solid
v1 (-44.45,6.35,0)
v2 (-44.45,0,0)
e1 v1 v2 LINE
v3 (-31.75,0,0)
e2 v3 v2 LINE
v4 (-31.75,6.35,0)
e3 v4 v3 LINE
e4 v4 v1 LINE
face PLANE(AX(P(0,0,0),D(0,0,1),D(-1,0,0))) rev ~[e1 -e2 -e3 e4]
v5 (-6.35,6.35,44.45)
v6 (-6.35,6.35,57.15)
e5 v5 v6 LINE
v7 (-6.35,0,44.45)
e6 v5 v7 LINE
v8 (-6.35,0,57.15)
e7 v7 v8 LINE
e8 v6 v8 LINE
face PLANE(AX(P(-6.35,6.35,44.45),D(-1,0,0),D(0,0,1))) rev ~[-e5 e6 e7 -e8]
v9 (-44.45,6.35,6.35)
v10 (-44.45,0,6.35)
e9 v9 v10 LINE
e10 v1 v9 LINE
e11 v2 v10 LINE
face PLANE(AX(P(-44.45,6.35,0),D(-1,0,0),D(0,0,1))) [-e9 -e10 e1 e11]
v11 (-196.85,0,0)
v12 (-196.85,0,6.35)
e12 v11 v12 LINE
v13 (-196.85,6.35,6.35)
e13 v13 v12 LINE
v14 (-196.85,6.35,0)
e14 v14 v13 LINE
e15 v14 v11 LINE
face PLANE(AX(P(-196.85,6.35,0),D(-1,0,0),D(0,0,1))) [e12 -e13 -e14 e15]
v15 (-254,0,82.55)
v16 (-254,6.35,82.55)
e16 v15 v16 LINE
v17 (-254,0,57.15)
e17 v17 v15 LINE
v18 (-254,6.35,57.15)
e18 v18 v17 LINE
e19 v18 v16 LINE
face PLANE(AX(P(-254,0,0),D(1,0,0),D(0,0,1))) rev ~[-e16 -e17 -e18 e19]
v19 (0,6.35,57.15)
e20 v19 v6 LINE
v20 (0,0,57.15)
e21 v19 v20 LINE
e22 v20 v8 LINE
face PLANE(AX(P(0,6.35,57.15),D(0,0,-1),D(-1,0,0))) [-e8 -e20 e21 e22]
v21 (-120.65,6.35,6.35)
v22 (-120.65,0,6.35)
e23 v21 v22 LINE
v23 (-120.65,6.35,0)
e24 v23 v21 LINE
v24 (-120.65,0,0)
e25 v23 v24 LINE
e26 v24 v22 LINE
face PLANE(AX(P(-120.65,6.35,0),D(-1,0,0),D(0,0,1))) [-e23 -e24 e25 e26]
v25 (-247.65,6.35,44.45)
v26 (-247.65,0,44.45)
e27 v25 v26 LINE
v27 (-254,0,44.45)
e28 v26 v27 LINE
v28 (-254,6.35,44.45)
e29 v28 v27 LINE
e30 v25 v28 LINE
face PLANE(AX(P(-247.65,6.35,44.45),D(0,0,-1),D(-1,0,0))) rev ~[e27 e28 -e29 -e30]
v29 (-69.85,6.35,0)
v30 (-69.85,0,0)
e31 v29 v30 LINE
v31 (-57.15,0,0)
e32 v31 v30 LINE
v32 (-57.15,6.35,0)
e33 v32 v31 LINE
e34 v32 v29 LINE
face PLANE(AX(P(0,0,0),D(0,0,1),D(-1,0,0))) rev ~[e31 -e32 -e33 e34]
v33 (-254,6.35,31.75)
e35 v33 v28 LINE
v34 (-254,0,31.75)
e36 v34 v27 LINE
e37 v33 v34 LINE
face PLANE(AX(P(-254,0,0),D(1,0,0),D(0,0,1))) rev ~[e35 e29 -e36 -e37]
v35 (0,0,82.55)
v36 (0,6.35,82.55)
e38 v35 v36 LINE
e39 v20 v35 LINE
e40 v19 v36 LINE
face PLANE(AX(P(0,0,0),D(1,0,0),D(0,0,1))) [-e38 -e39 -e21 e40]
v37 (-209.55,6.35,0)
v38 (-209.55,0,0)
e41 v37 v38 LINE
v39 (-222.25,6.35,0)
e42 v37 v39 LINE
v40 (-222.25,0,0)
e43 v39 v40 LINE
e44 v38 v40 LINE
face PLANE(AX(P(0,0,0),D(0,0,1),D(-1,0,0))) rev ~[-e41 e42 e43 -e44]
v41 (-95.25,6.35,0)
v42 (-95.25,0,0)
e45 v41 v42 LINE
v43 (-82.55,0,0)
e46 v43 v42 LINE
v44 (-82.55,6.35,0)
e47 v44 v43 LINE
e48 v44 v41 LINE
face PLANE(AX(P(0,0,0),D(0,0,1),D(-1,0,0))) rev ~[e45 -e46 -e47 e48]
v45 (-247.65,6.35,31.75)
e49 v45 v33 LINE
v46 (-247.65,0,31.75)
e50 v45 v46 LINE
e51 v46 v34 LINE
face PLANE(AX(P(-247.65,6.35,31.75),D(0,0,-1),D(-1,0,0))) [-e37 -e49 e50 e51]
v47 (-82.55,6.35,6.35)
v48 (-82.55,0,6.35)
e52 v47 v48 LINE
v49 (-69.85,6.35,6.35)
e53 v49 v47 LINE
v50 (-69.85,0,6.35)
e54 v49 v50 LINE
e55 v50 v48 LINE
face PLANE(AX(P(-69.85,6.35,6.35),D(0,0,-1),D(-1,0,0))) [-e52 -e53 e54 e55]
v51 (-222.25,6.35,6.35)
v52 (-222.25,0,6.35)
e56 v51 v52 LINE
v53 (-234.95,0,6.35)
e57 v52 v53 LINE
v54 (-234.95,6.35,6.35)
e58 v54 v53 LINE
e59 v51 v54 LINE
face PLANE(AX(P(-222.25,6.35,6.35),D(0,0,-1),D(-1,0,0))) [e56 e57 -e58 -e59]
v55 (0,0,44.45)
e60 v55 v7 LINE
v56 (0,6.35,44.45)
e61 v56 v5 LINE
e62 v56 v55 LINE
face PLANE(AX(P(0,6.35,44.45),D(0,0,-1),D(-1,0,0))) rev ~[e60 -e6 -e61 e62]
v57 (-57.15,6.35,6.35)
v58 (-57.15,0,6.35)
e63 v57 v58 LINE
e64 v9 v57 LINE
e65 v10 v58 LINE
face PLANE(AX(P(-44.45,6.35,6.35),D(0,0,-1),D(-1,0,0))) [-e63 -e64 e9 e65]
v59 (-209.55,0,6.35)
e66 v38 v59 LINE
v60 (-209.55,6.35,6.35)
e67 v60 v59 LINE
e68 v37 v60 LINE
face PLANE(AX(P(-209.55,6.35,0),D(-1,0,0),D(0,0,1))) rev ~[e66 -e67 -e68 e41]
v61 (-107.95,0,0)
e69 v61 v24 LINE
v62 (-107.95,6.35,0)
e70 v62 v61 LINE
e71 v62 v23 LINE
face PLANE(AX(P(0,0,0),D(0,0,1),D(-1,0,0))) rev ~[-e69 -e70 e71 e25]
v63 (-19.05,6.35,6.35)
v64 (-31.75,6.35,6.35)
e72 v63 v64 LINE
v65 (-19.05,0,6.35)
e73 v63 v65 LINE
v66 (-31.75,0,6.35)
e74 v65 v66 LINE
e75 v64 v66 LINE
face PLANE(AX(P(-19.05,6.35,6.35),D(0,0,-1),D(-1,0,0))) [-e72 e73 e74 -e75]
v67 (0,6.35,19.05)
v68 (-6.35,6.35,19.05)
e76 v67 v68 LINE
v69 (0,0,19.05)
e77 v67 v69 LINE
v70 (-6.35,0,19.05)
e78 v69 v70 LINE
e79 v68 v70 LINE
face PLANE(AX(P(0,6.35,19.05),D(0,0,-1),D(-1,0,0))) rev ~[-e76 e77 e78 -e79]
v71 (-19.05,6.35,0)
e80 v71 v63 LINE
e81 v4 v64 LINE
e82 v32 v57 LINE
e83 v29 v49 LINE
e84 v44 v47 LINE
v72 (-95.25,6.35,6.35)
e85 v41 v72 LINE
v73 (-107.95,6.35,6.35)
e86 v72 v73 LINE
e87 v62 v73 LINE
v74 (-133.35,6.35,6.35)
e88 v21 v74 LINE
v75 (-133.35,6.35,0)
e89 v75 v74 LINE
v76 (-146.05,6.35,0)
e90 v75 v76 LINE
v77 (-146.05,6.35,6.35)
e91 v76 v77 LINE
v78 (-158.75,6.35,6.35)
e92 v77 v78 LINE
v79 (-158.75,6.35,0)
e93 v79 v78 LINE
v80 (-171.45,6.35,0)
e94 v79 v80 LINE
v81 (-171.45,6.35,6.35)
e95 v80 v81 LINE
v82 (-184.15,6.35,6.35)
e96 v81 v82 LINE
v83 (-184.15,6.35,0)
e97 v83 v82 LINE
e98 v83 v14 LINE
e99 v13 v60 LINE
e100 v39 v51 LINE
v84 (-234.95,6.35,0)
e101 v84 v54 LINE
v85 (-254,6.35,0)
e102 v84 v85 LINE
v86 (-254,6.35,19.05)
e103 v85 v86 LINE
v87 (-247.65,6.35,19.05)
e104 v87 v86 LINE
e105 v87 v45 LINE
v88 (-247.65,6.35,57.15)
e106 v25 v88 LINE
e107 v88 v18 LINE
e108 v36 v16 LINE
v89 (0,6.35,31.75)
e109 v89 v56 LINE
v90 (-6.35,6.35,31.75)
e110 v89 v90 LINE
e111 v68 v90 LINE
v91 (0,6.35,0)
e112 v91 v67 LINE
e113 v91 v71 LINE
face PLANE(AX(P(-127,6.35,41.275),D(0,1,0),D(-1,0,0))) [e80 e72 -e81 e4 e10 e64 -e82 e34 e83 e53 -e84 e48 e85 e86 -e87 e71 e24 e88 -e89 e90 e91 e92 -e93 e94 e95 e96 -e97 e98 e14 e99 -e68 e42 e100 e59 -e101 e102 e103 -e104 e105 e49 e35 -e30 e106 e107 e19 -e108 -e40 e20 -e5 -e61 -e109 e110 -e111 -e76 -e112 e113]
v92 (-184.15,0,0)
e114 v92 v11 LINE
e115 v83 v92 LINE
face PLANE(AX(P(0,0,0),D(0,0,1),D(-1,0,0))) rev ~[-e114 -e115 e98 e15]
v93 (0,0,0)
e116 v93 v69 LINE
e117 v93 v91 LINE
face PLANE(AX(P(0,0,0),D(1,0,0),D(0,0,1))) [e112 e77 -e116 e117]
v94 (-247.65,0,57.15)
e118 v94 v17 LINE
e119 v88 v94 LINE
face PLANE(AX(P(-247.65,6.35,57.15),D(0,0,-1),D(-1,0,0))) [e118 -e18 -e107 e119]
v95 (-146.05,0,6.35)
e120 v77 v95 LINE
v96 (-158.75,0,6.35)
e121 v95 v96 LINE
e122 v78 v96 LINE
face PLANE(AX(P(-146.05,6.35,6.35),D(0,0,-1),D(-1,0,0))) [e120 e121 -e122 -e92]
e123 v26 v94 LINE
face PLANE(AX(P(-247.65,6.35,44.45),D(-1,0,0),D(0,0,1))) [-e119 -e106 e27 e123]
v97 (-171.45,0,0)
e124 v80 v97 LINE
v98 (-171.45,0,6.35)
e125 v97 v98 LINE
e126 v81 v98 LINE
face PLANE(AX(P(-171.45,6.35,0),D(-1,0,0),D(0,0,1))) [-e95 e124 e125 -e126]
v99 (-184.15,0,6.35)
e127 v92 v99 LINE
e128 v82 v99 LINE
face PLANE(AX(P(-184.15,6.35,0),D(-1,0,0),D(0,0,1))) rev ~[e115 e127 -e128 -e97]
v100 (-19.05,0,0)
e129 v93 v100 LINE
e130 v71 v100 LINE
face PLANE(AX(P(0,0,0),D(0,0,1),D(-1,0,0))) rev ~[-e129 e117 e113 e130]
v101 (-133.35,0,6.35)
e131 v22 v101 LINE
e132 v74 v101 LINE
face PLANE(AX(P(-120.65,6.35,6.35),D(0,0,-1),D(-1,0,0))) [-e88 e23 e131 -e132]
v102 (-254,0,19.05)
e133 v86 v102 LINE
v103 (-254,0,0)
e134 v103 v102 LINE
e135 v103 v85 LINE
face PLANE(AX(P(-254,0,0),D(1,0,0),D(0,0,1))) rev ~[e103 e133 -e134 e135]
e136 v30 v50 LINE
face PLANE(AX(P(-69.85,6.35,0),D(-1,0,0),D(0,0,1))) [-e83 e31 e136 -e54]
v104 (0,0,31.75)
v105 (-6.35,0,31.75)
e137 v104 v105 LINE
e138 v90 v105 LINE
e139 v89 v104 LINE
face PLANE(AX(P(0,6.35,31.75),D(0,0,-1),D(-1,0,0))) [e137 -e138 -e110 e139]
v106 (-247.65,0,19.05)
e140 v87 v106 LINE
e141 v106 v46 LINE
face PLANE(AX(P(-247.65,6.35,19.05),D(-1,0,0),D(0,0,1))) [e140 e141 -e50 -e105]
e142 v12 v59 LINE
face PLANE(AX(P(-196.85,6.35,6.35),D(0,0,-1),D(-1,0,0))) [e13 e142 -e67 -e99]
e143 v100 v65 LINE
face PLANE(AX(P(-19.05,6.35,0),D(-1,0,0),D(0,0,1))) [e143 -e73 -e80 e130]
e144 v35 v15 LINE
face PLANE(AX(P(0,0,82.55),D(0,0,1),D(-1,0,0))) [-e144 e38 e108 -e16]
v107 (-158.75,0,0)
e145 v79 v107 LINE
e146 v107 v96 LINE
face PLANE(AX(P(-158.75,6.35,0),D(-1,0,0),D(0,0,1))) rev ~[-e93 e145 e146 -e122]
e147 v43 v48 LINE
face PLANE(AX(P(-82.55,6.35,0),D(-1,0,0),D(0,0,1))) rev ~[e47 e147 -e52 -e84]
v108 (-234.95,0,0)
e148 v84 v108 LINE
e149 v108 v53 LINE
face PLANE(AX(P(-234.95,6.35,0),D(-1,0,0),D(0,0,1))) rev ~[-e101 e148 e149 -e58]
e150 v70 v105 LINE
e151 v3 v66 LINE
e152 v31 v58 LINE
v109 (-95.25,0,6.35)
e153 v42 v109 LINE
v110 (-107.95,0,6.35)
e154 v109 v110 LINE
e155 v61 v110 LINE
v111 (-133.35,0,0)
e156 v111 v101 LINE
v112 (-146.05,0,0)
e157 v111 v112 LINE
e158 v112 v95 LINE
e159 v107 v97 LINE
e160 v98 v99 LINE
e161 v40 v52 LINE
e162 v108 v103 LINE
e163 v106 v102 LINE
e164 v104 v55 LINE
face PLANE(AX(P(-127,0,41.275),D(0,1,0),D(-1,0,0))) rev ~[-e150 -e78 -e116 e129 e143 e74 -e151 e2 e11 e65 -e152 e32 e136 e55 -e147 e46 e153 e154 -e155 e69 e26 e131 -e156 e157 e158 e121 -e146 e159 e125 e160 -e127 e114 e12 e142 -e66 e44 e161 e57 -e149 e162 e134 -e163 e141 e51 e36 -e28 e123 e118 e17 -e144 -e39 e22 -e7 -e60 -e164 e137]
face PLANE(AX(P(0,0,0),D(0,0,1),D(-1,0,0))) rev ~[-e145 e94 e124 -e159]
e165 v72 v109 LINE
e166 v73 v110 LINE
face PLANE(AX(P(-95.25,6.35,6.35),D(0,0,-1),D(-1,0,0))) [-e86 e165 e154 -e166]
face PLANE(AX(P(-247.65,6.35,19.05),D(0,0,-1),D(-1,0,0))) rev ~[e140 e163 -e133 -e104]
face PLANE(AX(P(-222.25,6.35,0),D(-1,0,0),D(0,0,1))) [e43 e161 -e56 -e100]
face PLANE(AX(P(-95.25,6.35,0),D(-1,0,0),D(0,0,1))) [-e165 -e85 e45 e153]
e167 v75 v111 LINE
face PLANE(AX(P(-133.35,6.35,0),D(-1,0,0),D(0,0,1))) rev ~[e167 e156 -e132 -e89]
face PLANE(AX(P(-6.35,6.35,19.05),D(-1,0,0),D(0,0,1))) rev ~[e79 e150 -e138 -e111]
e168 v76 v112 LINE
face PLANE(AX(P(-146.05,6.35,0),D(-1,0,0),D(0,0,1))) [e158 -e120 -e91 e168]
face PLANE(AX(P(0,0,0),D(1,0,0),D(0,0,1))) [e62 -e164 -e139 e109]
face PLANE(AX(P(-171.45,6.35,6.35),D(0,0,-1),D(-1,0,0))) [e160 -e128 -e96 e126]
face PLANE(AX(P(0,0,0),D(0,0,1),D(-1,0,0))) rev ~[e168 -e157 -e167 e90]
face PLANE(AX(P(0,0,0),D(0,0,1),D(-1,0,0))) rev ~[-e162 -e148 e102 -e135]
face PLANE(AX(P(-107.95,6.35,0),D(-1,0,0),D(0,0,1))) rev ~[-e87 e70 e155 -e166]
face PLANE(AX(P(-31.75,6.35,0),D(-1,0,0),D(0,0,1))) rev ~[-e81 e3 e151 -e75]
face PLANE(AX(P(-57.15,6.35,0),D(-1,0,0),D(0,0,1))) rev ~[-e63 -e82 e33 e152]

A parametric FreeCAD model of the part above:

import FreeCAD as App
import Part
import Sketcher
Q = App.Units.Quantity

doc = App.newDocument("Part")
body = doc.addObject("PartDesign::Body", "Body")

sketch1 = body.newObject("Sketcher::SketchObject", "Sketch")
sketch1.AttachmentSupport = (doc.getObject("XZ_Plane"), [""])
sketch1.MapMode = "FlatFace"
sketch1.addGeometry([
    Part.LineSegment(App.Vector(0, 83, 0), App.Vector(0, 0, 0)),
    Part.LineSegment(App.Vector(0, 0, 0), App.Vector(-254, 0, 0)),
    Part.LineSegment(App.Vector(-254, 0, 0), App.Vector(-254, 83, 0)),
    Part.LineSegment(App.Vector(-254, 83, 0), App.Vector(0, 83, 0)),
], False)
sketch1.addConstraint([
    Sketcher.Constraint("Coincident", 0, 2, 1, 1),
    Sketcher.Constraint("Coincident", 1, 2, 2, 1),
    Sketcher.Constraint("Coincident", 2, 2, 3, 1),
    Sketcher.Constraint("Coincident", 3, 2, 0, 1),
    Sketcher.Constraint("Vertical", 0),
    Sketcher.Constraint("Horizontal", 1),
    Sketcher.Constraint("Vertical", 2),
    Sketcher.Constraint("Horizontal", 3),
    Sketcher.Constraint("Coincident", 0, 2, -1, 1),
    Sketcher.Constraint("DistanceX", 1, 2, 1, 1, Q("10 in")),
    Sketcher.Constraint("DistanceY", 0, 2, 0, 1, Q("3.25 in")),
])
pad1 = body.newObject("PartDesign::Pad", "Pad")
pad1.Profile = sketch1
pad1.Length = Q("0.25 in")
pad1.Reversed = True

sketch2 = body.newObject("Sketcher::SketchObject", "Sketch001")
sketch2.AttachmentSupport = (doc.getObject("XZ_Plane"), [""])
sketch2.MapMode = "FlatFace"
sketch2.AttachmentOffset = App.Placement(App.Vector(0, 0, -0.25 * 25.4), App.Rotation())
sketch2.addGeometry([
    Part.LineSegment(App.Vector(0, 32, 0), App.Vector(0, 19, 0)),
    Part.LineSegment(App.Vector(0, 19, 0), App.Vector(-6, 19, 0)),
    Part.LineSegment(App.Vector(-6, 19, 0), App.Vector(-6, 32, 0)),
    Part.LineSegment(App.Vector(-6, 32, 0), App.Vector(0, 32, 0)),
    Part.LineSegment(App.Vector(0, 57, 0), App.Vector(0, 44, 0)),
    Part.LineSegment(App.Vector(0, 44, 0), App.Vector(-6, 44, 0)),
    Part.LineSegment(App.Vector(-6, 44, 0), App.Vector(-6, 57, 0)),
    Part.LineSegment(App.Vector(-6, 57, 0), App.Vector(0, 57, 0)),
    Part.LineSegment(App.Vector(-248, 32, 0), App.Vector(-248, 19, 0)),
    Part.LineSegment(App.Vector(-248, 19, 0), App.Vector(-254, 19, 0)),
    Part.LineSegment(App.Vector(-254, 19, 0), App.Vector(-254, 32, 0)),
    Part.LineSegment(App.Vector(-254, 32, 0), App.Vector(-248, 32, 0)),
    Part.LineSegment(App.Vector(-248, 57, 0), App.Vector(-248, 44, 0)),
    Part.LineSegment(App.Vector(-248, 44, 0), App.Vector(-254, 44, 0)),
    Part.LineSegment(App.Vector(-254, 44, 0), App.Vector(-254, 57, 0)),
    Part.LineSegment(App.Vector(-254, 57, 0), App.Vector(-248, 57, 0)),
    Part.LineSegment(App.Vector(-44, 6, 0), App.Vector(-44, 0, 0)),
    Part.LineSegment(App.Vector(-44, 0, 0), App.Vector(-57, 0, 0)),
    Part.LineSegment(App.Vector(-57, 0, 0), App.Vector(-57, 6, 0)),
    Part.LineSegment(App.Vector(-57, 6, 0), App.Vector(-44, 6, 0)),
    Part.LineSegment(App.Vector(-19, 6, 0), App.Vector(-19, 0, 0)),
    Part.LineSegment(App.Vector(-19, 0, 0), App.Vector(-32, 0, 0)),
    Part.LineSegment(App.Vector(-32, 0, 0), App.Vector(-32, 6, 0)),
    Part.LineSegment(App.Vector(-32, 6, 0), App.Vector(-19, 6, 0)),
    Part.LineSegment(App.Vector(-70, 6, 0), App.Vector(-70, 0, 0)),
    Part.LineSegment(App.Vector(-70, 0, 0), App.Vector(-83, 0, 0)),
    Part.LineSegment(App.Vector(-83, 0, 0), App.Vector(-83, 6, 0)),
    Part.LineSegment(App.Vector(-83, 6, 0), App.Vector(-70, 6, 0)),
    Part.LineSegment(App.Vector(-95, 6, 0), App.Vector(-95, 0, 0)),
    Part.LineSegment(App.Vector(-95, 0, 0), App.Vector(-108, 0, 0)),
    Part.LineSegment(App.Vector(-108, 0, 0), App.Vector(-108, 6, 0)),
    Part.LineSegment(App.Vector(-108, 6, 0), App.Vector(-95, 6, 0)),
    Part.LineSegment(App.Vector(-121, 6, 0), App.Vector(-121, 0, 0)),
    Part.LineSegment(App.Vector(-121, 0, 0), App.Vector(-133, 0, 0)),
    Part.LineSegment(App.Vector(-133, 0, 0), App.Vector(-133, 6, 0)),
    Part.LineSegment(App.Vector(-133, 6, 0), App.Vector(-121, 6, 0)),
    Part.LineSegment(App.Vector(-171, 6, 0), App.Vector(-171, 0, 0)),
    Part.LineSegment(App.Vector(-171, 0, 0), App.Vector(-184, 0, 0)),
    Part.LineSegment(App.Vector(-184, 0, 0), App.Vector(-184, 6, 0)),
    Part.LineSegment(App.Vector(-184, 6, 0), App.Vector(-171, 6, 0)),
    Part.LineSegment(App.Vector(-146, 6, 0), App.Vector(-146, 0, 0)),
    Part.LineSegment(App.Vector(-146, 0, 0), App.Vector(-159, 0, 0)),
    Part.LineSegment(App.Vector(-159, 0, 0), App.Vector(-159, 6, 0)),
    Part.LineSegment(App.Vector(-159, 6, 0), App.Vector(-146, 6, 0)),
    Part.LineSegment(App.Vector(-197, 6, 0), App.Vector(-197, 0, 0)),
    Part.LineSegment(App.Vector(-197, 0, 0), App.Vector(-210, 0, 0)),
    Part.LineSegment(App.Vector(-210, 0, 0), App.Vector(-210, 6, 0)),
    Part.LineSegment(App.Vector(-210, 6, 0), App.Vector(-197, 6, 0)),
    Part.LineSegment(App.Vector(-222, 6, 0), App.Vector(-222, 0, 0)),
    Part.LineSegment(App.Vector(-222, 0, 0), App.Vector(-235, 0, 0)),
    Part.LineSegment(App.Vector(-235, 0, 0), App.Vector(-235, 6, 0)),
    Part.LineSegment(App.Vector(-235, 6, 0), App.Vector(-222, 6, 0)),
], False)
sketch2.addConstraint([
    Sketcher.Constraint("Coincident", 0, 2, 1, 1),
    Sketcher.Constraint("Coincident", 1, 2, 2, 1),
    Sketcher.Constraint("Coincident", 2, 2, 3, 1),
    Sketcher.Constraint("Coincident", 3, 2, 0, 1),
    Sketcher.Constraint("Coincident", 4, 2, 5, 1),
    Sketcher.Constraint("Coincident", 5, 2, 6, 1),
    Sketcher.Constraint("Coincident", 6, 2, 7, 1),
    Sketcher.Constraint("Coincident", 7, 2, 4, 1),
    Sketcher.Constraint("Coincident", 8, 2, 9, 1),
    Sketcher.Constraint("Coincident", 9, 2, 10, 1),
    Sketcher.Constraint("Coincident", 10, 2, 11, 1),
    Sketcher.Constraint("Coincident", 11, 2, 8, 1),
    Sketcher.Constraint("Coincident", 12, 2, 13, 1),
    Sketcher.Constraint("Coincident", 13, 2, 14, 1),
    Sketcher.Constraint("Coincident", 14, 2, 15, 1),
    Sketcher.Constraint("Coincident", 15, 2, 12, 1),
    Sketcher.Constraint("Coincident", 16, 2, 17, 1),
    Sketcher.Constraint("Coincident", 17, 2, 18, 1),
    Sketcher.Constraint("Coincident", 18, 2, 19, 1),
    Sketcher.Constraint("Coincident", 19, 2, 16, 1),
    Sketcher.Constraint("Coincident", 20, 2, 21, 1),
    Sketcher.Constraint("Coincident", 21, 2, 22, 1),
    Sketcher.Constraint("Coincident", 22, 2, 23, 1),
    Sketcher.Constraint("Coincident", 23, 2, 20, 1),
    Sketcher.Constraint("Coincident", 24, 2, 25, 1),
    Sketcher.Constraint("Coincident", 25, 2, 26, 1),
    Sketcher.Constraint("Coincident", 26, 2, 27, 1),
    Sketcher.Constraint("Coincident", 27, 2, 24, 1),
    Sketcher.Constraint("Coincident", 28, 2, 29, 1),
    Sketcher.Constraint("Coincident", 29, 2, 30, 1),
    Sketcher.Constraint("Coincident", 30, 2, 31, 1),
    Sketcher.Constraint("Coincident", 31, 2, 28, 1),
    Sketcher.Constraint("Coincident", 32, 2, 33, 1),
    Sketcher.Constraint("Coincident", 33, 2, 34, 1),
    Sketcher.Constraint("Coincident", 34, 2, 35, 1),
    Sketcher.Constraint("Coincident", 35, 2, 32, 1),
    Sketcher.Constraint("Coincident", 36, 2, 37, 1),
    Sketcher.Constraint("Coincident", 37, 2, 38, 1),
    Sketcher.Constraint("Coincident", 38, 2, 39, 1),
    Sketcher.Constraint("Coincident", 39, 2, 36, 1),
    Sketcher.Constraint("Coincident", 40, 2, 41, 1),
    Sketcher.Constraint("Coincident", 41, 2, 42, 1),
    Sketcher.Constraint("Coincident", 42, 2, 43, 1),
    Sketcher.Constraint("Coincident", 43, 2, 40, 1),
    Sketcher.Constraint("Coincident", 44, 2, 45, 1),
    Sketcher.Constraint("Coincident", 45, 2, 46, 1),
    Sketcher.Constraint("Coincident", 46, 2, 47, 1),
    Sketcher.Constraint("Coincident", 47, 2, 44, 1),
    Sketcher.Constraint("Coincident", 48, 2, 49, 1),
    Sketcher.Constraint("Coincident", 49, 2, 50, 1),
    Sketcher.Constraint("Coincident", 50, 2, 51, 1),
    Sketcher.Constraint("Coincident", 51, 2, 48, 1),
    Sketcher.Constraint("Vertical", 0),
    Sketcher.Constraint("Horizontal", 1),
    Sketcher.Constraint("Vertical", 2),
    Sketcher.Constraint("Horizontal", 3),
    Sketcher.Constraint("Vertical", 4),
    Sketcher.Constraint("Horizontal", 5),
    Sketcher.Constraint("Vertical", 6),
    Sketcher.Constraint("Horizontal", 7),
    Sketcher.Constraint("Vertical", 8),
    Sketcher.Constraint("Horizontal", 9),
    Sketcher.Constraint("Vertical", 10),
    Sketcher.Constraint("Horizontal", 11),
    Sketcher.Constraint("Vertical", 12),
    Sketcher.Constraint("Horizontal", 13),
    Sketcher.Constraint("Vertical", 14),
    Sketcher.Constraint("Horizontal", 15),
    Sketcher.Constraint("Vertical", 16),
    Sketcher.Constraint("Horizontal", 17),
    Sketcher.Constraint("Vertical", 18),
    Sketcher.Constraint("Horizontal", 19),
    Sketcher.Constraint("Vertical", 20),
    Sketcher.Constraint("Horizontal", 21),
    Sketcher.Constraint("Vertical", 22),
    Sketcher.Constraint("Horizontal", 23),
    Sketcher.Constraint("Vertical", 24),
    Sketcher.Constraint("Horizontal", 25),
    Sketcher.Constraint("Vertical", 26),
    Sketcher.Constraint("Horizontal", 27),
    Sketcher.Constraint("Vertical", 28),
    Sketcher.Constraint("Horizontal", 29),
    Sketcher.Constraint("Vertical", 30),
    Sketcher.Constraint("Horizontal", 31),
    Sketcher.Constraint("Vertical", 32),
    Sketcher.Constraint("Horizontal", 33),
    Sketcher.Constraint("Vertical", 34),
    Sketcher.Constraint("Horizontal", 35),
    Sketcher.Constraint("Vertical", 36),
    Sketcher.Constraint("Horizontal", 37),
    Sketcher.Constraint("Vertical", 38),
    Sketcher.Constraint("Horizontal", 39),
    Sketcher.Constraint("Vertical", 40),
    Sketcher.Constraint("Horizontal", 41),
    Sketcher.Constraint("Vertical", 42),
    Sketcher.Constraint("Horizontal", 43),
    Sketcher.Constraint("Vertical", 44),
    Sketcher.Constraint("Horizontal", 45),
    Sketcher.Constraint("Vertical", 46),
    Sketcher.Constraint("Horizontal", 47),
    Sketcher.Constraint("Vertical", 48),
    Sketcher.Constraint("Horizontal", 49),
    Sketcher.Constraint("Vertical", 50),
    Sketcher.Constraint("Horizontal", 51),
    Sketcher.Constraint("PointOnObject", 0, 2, -2),
    Sketcher.Constraint("PointOnObject", 4, 2, -2),
    Sketcher.Constraint("PointOnObject", 16, 2, -1),
    Sketcher.Constraint("PointOnObject", 20, 2, -1),
    Sketcher.Constraint("PointOnObject", 24, 2, -1),
    Sketcher.Constraint("PointOnObject", 28, 2, -1),
    Sketcher.Constraint("PointOnObject", 32, 2, -1),
    Sketcher.Constraint("PointOnObject", 36, 2, -1),
    Sketcher.Constraint("PointOnObject", 40, 2, -1),
    Sketcher.Constraint("PointOnObject", 44, 2, -1),
    Sketcher.Constraint("PointOnObject", 48, 2, -1),
    Sketcher.Constraint("Horizontal", 1, 2, 8, 2),
    Sketcher.Constraint("Horizontal", 3, 2, 10, 2),
    Sketcher.Constraint("Horizontal", 5, 2, 12, 2),
    Sketcher.Constraint("Horizontal", 7, 2, 14, 2),
    Sketcher.Constraint("Horizontal", 19, 2, 22, 2),
    Sketcher.Constraint("Horizontal", 23, 2, 26, 2),
    Sketcher.Constraint("Horizontal", 27, 2, 30, 2),
    Sketcher.Constraint("Horizontal", 31, 2, 34, 2),
    Sketcher.Constraint("Horizontal", 35, 2, 38, 2),
    Sketcher.Constraint("Horizontal", 39, 2, 42, 2),
    Sketcher.Constraint("Horizontal", 43, 2, 46, 2),
    Sketcher.Constraint("Horizontal", 47, 2, 50, 2),
    Sketcher.Constraint("Vertical", 2, 2, 5, 2),
    Sketcher.Constraint("Vertical", 11, 2, 12, 2),
    Sketcher.Constraint("Vertical", 10, 2, 13, 2),
    Sketcher.Constraint("Equal", 7, 9),
    Sketcher.Constraint("Equal", 19, 21),
    Sketcher.Constraint("Equal", 23, 25),
    Sketcher.Constraint("Equal", 27, 29),
    Sketcher.Constraint("Equal", 31, 33),
    Sketcher.Constraint("Equal", 35, 37),
    Sketcher.Constraint("Equal", 39, 41),
    Sketcher.Constraint("Equal", 43, 45),
    Sketcher.Constraint("Equal", 47, 49),
    Sketcher.Constraint("Equal", 51, 0),
    Sketcher.Constraint("Equal", 2, 4),
    Sketcher.Constraint("Equal", 15, 16),
    Sketcher.Constraint("DistanceX", 17, 2, 17, 1, Q("0.5 in")),
    Sketcher.Constraint("DistanceX", 9, 2, -1, 1, Q("10 in")),
    Sketcher.Constraint("DistanceY", 0, 2, 4, 2, Q("1 in")),
    Sketcher.Constraint("DistanceX", 17, 2, 1, 2, Q("2 in")),
    Sketcher.Constraint("DistanceY", 18, 2, 2, 2, Q("1 in")),
    Sketcher.Constraint("DistanceX", 16, 2, 20, 2, Q("1 in")),
    Sketcher.Constraint("DistanceX", 24, 2, 16, 2, Q("1 in")),
    Sketcher.Constraint("DistanceX", 28, 2, 24, 2, Q("1 in")),
    Sketcher.Constraint("DistanceX", 32, 2, 28, 2, Q("1 in")),
    Sketcher.Constraint("DistanceX", 36, 2, 32, 2, Q("2 in")),
    Sketcher.Constraint("DistanceX", 36, 2, 40, 2, Q("1 in")),
    Sketcher.Constraint("DistanceX", 44, 2, 36, 2, Q("1 in")),
    Sketcher.Constraint("DistanceX", 48, 2, 44, 2, Q("1 in")),
    Sketcher.Constraint("DistanceX", 8, 2, 48, 2, Q("1 in")),
])
pocket1 = body.newObject("PartDesign::Pocket", "Pocket")
pocket1.Profile = sketch2
pocket1.Length = Q("0.25 in")
pocket1.Reversed = True

doc.recompute()
